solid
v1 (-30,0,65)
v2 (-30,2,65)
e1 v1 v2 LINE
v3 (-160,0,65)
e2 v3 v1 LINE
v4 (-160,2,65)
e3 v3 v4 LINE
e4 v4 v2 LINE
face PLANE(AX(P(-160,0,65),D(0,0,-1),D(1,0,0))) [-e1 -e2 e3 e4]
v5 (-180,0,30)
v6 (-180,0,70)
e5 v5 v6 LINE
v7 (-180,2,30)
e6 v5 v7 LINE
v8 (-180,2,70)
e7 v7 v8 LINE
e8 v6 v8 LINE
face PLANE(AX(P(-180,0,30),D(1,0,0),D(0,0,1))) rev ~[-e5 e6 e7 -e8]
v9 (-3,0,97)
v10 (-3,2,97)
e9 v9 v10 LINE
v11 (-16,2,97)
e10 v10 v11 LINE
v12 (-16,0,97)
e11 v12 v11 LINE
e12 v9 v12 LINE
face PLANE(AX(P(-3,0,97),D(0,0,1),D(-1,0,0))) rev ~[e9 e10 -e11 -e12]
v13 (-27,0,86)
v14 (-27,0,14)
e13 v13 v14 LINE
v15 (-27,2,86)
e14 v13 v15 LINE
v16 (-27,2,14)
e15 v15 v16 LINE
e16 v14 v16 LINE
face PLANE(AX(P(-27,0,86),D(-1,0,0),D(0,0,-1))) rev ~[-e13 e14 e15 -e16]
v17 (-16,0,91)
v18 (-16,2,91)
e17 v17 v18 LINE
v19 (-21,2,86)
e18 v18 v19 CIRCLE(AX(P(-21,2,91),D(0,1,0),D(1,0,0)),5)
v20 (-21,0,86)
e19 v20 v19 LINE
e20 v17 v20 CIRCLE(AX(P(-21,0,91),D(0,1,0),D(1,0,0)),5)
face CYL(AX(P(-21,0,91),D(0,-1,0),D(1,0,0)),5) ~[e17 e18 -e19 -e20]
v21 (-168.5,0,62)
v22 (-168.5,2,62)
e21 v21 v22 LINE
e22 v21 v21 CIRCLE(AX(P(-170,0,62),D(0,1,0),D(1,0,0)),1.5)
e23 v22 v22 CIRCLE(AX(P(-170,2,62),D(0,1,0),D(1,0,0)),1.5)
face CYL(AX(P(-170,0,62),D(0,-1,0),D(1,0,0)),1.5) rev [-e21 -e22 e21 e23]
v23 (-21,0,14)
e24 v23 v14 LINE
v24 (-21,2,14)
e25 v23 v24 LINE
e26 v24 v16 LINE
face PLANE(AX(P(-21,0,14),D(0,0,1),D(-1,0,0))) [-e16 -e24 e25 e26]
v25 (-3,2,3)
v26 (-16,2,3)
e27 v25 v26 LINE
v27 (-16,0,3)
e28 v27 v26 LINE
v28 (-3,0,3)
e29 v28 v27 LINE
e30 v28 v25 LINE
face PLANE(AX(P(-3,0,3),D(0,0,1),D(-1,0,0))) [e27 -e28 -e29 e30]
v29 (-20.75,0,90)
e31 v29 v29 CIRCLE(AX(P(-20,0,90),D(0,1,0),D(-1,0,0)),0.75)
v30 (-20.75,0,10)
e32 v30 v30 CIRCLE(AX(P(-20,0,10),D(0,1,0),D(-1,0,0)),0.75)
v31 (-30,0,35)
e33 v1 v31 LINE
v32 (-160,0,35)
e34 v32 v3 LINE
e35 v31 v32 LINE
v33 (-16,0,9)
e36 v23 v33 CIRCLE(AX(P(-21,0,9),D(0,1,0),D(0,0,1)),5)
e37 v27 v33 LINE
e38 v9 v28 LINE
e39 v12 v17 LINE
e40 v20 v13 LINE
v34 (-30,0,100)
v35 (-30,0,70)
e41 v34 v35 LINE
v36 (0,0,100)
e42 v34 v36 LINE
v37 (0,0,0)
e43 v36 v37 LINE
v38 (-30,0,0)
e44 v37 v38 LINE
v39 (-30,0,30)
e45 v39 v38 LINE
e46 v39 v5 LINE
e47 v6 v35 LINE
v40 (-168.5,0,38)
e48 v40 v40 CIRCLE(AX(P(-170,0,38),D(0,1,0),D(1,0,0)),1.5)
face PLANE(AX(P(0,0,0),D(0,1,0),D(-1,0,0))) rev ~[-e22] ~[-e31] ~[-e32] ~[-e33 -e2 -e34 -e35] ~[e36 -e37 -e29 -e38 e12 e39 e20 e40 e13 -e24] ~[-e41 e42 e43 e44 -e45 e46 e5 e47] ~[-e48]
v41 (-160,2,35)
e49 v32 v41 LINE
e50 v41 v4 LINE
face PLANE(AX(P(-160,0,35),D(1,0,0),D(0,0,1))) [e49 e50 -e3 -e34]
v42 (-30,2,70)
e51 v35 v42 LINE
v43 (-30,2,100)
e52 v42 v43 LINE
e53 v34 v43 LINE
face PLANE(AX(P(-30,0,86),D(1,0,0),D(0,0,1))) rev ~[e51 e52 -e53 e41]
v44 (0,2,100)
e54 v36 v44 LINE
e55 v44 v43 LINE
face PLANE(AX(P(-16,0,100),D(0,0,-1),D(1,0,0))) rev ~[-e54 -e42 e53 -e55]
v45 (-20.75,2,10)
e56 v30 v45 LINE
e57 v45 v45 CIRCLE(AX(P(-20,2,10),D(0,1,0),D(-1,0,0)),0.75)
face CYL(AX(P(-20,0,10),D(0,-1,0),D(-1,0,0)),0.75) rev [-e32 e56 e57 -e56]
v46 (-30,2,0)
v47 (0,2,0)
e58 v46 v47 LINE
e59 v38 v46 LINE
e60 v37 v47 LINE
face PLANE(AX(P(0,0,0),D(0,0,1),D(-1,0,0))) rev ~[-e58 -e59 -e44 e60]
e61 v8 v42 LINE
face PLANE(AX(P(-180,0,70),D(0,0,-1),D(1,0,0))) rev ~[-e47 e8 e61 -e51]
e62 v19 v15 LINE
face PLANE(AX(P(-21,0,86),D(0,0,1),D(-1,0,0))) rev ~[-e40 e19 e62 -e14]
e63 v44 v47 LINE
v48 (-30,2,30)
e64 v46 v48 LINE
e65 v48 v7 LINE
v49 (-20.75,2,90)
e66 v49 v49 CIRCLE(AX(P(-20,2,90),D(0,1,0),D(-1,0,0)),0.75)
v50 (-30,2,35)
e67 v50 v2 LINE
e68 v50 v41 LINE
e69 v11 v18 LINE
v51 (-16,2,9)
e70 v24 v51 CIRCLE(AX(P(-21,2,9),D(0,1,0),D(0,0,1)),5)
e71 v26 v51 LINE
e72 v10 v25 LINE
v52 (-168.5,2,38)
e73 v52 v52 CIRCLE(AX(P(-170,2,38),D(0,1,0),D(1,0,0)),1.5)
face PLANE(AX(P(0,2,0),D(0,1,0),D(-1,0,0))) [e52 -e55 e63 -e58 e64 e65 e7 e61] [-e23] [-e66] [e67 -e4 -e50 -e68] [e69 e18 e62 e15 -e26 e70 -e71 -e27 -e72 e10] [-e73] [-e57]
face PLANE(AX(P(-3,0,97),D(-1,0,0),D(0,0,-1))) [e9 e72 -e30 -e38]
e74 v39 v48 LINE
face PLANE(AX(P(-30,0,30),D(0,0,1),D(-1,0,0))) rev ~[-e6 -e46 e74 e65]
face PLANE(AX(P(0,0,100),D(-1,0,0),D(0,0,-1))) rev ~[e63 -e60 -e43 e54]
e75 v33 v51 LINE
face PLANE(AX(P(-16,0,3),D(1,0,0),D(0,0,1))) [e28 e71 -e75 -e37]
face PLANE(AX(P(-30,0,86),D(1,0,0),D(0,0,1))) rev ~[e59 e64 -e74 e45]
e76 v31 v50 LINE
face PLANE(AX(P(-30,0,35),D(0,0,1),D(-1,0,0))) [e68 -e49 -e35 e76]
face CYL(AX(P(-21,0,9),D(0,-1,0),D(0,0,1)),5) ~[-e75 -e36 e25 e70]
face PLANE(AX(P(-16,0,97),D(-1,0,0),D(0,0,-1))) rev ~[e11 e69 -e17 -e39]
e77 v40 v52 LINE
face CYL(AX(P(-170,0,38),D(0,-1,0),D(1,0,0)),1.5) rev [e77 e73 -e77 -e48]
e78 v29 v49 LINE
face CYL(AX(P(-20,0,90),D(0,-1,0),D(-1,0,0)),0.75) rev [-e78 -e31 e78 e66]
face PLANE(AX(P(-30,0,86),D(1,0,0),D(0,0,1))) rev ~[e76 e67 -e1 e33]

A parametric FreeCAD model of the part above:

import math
import FreeCAD as App
import Part
import Sketcher
from FreeCAD import Vector

doc = App.newDocument("Part")
body = doc.addObject("PartDesign::Body", "Body")

sketch1 = doc.addObject("Sketcher::SketchObject", "Sketch")
body.addObject(sketch1)
sketch1.AttachmentSupport = (doc.XZ_Plane, [""])
sketch1.MapMode = "FlatFace"
sketch1.addGeometry([
    Part.LineSegment(Vector(0, 100, 0), Vector(0, 0, 0)),
    Part.LineSegment(Vector(0, 0, 0), Vector(-30, 0, 0)),
    Part.LineSegment(Vector(-30, 0, 0), Vector(-30, 100, 0)),
    Part.LineSegment(Vector(-30, 100, 0), Vector(0, 100, 0)),
    Part.LineSegment(Vector(-3, 97, 0), Vector(-16, 97, 0)),
    Part.LineSegment(Vector(-16, 97, 0), Vector(-16, 91, 0)),
    Part.ArcOfCircle(Part.Circle(Vector(-21, 91, 0), Vector(0, 0, 1), 5), math.radians(-90), math.radians(0)),
    Part.LineSegment(Vector(-21, 86, 0), Vector(-27, 86, 0)),
    Part.LineSegment(Vector(-27, 86, 0), Vector(-27, 14, 0)),
    Part.LineSegment(Vector(-27, 14, 0), Vector(-21, 14, 0)),
    Part.ArcOfCircle(Part.Circle(Vector(-21, 9, 0), Vector(0, 0, 1), 5), math.radians(0), math.radians(90)),
    Part.LineSegment(Vector(-16, 9, 0), Vector(-16, 3, 0)),
    Part.LineSegment(Vector(-16, 3, 0), Vector(-3, 3, 0)),
    Part.LineSegment(Vector(-3, 3, 0), Vector(-3, 97, 0)),
    Part.Circle(Vector(-20, 90, 0), Vector(0, 0, 1), 0.8),
    Part.Circle(Vector(-20, 10, 0), Vector(0, 0, 1), 0.8),
], False)
sketch1.addConstraint([
    Sketcher.Constraint("Coincident", 0, 2, 1, 1),
    Sketcher.Constraint("Coincident", 1, 2, 2, 1),
    Sketcher.Constraint("Coincident", 2, 2, 3, 1),
    Sketcher.Constraint("Coincident", 3, 2, 0, 1),
    Sketcher.Constraint("Coincident", 4, 2, 5, 1),
    Sketcher.Constraint("Tangent", 5, 2, 6, 2),
    Sketcher.Constraint("Tangent", 6, 1, 7, 1),
    Sketcher.Constraint("Coincident", 7, 2, 8, 1),
    Sketcher.Constraint("Coincident", 8, 2, 9, 1),
    Sketcher.Constraint("Tangent", 9, 2, 10, 2),
    Sketcher.Constraint("Tangent", 10, 1, 11, 1),
    Sketcher.Constraint("Coincident", 11, 2, 12, 1),
    Sketcher.Constraint("Coincident", 12, 2, 13, 1),
    Sketcher.Constraint("Coincident", 13, 2, 4, 1),
    Sketcher.Constraint("Vertical", 0),
    Sketcher.Constraint("Horizontal", 1),
    Sketcher.Constraint("Vertical", 2),
    Sketcher.Constraint("Horizontal", 3),
    Sketcher.Constraint("Horizontal", 4),
    Sketcher.Constraint("Vertical", 5),
    Sketcher.Constraint("Horizontal", 7),
    Sketcher.Constraint("Vertical", 8),
    Sketcher.Constraint("Horizontal", 9),
    Sketcher.Constraint("Vertical", 11),
    Sketcher.Constraint("Horizontal", 12),
    Sketcher.Constraint("Vertical", 13),
    Sketcher.Constraint("Coincident", 0, 2, -1, 1),
    Sketcher.Constraint("Equal", 6, 10),
    Sketcher.Constraint("Equal", 14, 15),
    Sketcher.Constraint("Vertical", 6, 3, 10, 3),
    Sketcher.Constraint("Vertical", 14, 3, 15, 3),
    Sketcher.Constraint("Equal", 9, 5),
    Sketcher.Constraint("Equal", 5, 11),
    Sketcher.Constraint("Radius", 6, 5.0),
    Sketcher.Constraint("DistanceX", 1, 2, 1, 1, 30.0),
    Sketcher.Constraint("DistanceY", 0, 2, 0, 1, 100.0),
    Sketcher.Constraint("DistanceY", 13, 1, 13, 2, 94.0),
    Sketcher.Constraint("DistanceY", -1, 1, 8, 2, 14.0),
    Sketcher.Constraint("DistanceX", 2, 2, 4, 2, 14.0),
    Sketcher.Constraint("DistanceY", 6, 1, 2, 2, 14.0),
    Sketcher.Constraint("Diameter", 14, 1.5),
    Sketcher.Constraint("DistanceX", 4, 2, 4, 1, 13.0),
    Sketcher.Constraint("DistanceX", 14, 3, -1, 1, 20.0),
    Sketcher.Constraint("DistanceY", -1, 1, 14, 3, 90.0),
    Sketcher.Constraint("DistanceY", -1, 1, 15, 3, 10.0),
])
pad1 = doc.addObject("PartDesign::Pad", "Pad")
body.addObject(pad1)
pad1.Profile = sketch1
pad1.Length = 2
pad1.Reversed = True

sketch2 = doc.addObject("Sketcher::SketchObject", "Sketch001")
body.addObject(sketch2)
sketch2.AttachmentSupport = (doc.XZ_Plane, [""])
sketch2.MapMode = "FlatFace"
sketch2.addGeometry([
    Part.LineSegment(Vector(-30, 35, 0), Vector(-30, 30, 0)),
    Part.LineSegment(Vector(-30, 30, 0), Vector(-180, 30, 0)),
    Part.LineSegment(Vector(-180, 30, 0), Vector(-180, 70, 0)),
    Part.LineSegment(Vector(-180, 70, 0), Vector(-30, 70, 0)),
    Part.LineSegment(Vector(-30, 70, 0), Vector(-30, 65, 0)),
    Part.LineSegment(Vector(-30, 65, 0), Vector(-160, 65, 0)),
    Part.LineSegment(Vector(-160, 65, 0), Vector(-160, 35, 0)),
    Part.LineSegment(Vector(-160, 35, 0), Vector(-30, 35, 0)),
    Part.Circle(Vector(-170, 62, 0), Vector(0, 0, 1), 1.5),
    Part.Circle(Vector(-170, 38, 0), Vector(0, 0, 1), 1.5),
], False)
sketch2.addConstraint([
    Sketcher.Constraint("Coincident", 0, 2, 1, 1),
    Sketcher.Constraint("Coincident", 1, 2, 2, 1),
    Sketcher.Constraint("Coincident", 2, 2, 3, 1),
    Sketcher.Constraint("Coincident", 3, 2, 4, 1),
    Sketcher.Constraint("Coincident", 4, 2, 5, 1),
    Sketcher.Constraint("Coincident", 5, 2, 6, 1),
    Sketcher.Constraint("Coincident", 6, 2, 7, 1),
    Sketcher.Constraint("Coincident", 7, 2, 0, 1),
    Sketcher.Constraint("Vertical", 0),
    Sketcher.Constraint("Horizontal", 1),
    Sketcher.Constraint("Vertical", 2),
    Sketcher.Constraint("Horizontal", 3),
    Sketcher.Constraint("Vertical", 4),
    Sketcher.Constraint("Horizontal", 5),
    Sketcher.Constraint("Vertical", 6),
    Sketcher.Constraint("Horizontal", 7),
    Sketcher.Constraint("Equal", 8, 9),
    Sketcher.Constraint("Vertical", 8, 3, 9, 3),
    Sketcher.Constraint("Vertical", 0, 2, 3, 2),
    Sketcher.Constraint("Equal", 0, 4),
    Sketcher.Constraint("Diameter", 8, 3.0),
    Sketcher.Constraint("DistanceX", 5, 2, 5, 1, 130.0),
    Sketcher.Constraint("DistanceY", 6, 2, 6, 1, 30.0),
    Sketcher.Constraint("DistanceX", 0, 2, -1, 1, 30.0),
    Sketcher.Constraint("DistanceY", -1, 1, 0, 2, 30.0),
    Sketcher.Constraint("DistanceY", 8, 3, 4, 2, 3.0),
    Sketcher.Constraint("DistanceY", 6, 2, 9, 3, 3.0),
    Sketcher.Constraint("DistanceX", 1, 2, 1, 1, 150.0),
    Sketcher.Constraint("DistanceY", 0, 2, 0, 1, 5.0),
    Sketcher.Constraint("DistanceX", 8, 3, -1, 1, 170.0),
])
pad2 = doc.addObject("PartDesign::Pad", "Pad001")
body.addObject(pad2)
pad2.Profile = sketch2
pad2.Length = 2
pad2.Reversed = True

doc.recompute()
